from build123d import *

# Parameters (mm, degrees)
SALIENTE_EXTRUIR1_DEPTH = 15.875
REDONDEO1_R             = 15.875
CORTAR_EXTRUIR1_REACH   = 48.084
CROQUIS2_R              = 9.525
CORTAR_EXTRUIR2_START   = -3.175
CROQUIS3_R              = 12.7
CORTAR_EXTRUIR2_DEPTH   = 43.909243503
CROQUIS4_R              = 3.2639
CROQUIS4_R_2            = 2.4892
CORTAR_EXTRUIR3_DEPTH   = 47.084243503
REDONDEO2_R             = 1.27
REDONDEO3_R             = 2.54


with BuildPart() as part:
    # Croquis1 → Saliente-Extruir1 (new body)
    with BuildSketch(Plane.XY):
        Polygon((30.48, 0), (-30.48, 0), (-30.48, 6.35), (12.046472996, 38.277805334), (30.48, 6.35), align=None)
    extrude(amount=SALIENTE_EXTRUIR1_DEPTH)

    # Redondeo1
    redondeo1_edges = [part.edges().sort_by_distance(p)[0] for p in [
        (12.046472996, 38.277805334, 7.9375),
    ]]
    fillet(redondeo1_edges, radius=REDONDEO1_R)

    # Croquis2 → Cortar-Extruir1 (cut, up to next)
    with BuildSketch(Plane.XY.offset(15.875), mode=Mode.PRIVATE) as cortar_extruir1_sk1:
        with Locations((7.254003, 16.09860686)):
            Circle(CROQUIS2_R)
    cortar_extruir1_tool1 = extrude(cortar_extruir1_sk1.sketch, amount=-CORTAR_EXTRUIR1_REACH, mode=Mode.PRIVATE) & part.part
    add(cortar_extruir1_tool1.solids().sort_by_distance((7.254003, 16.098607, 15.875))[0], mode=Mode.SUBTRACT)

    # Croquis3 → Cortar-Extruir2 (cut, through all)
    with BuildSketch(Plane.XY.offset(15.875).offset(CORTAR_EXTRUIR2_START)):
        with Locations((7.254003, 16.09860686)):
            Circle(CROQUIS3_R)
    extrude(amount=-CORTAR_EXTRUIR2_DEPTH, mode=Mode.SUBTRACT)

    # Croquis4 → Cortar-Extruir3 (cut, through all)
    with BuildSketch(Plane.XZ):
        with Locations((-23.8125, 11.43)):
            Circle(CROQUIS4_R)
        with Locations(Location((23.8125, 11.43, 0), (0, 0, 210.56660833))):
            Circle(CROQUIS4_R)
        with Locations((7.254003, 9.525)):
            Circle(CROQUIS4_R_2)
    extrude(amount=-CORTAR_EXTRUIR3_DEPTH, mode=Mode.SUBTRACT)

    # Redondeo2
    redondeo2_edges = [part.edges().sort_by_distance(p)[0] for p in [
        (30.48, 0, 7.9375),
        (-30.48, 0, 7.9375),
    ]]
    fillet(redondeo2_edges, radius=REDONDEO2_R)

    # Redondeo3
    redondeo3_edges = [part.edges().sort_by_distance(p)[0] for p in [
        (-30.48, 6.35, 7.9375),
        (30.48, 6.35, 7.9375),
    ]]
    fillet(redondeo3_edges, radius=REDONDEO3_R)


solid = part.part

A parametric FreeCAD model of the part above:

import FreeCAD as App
import Part
import Sketcher

V = App.Vector
Q = App.Units.Quantity


def edges_at(feature, points):
    """Names of the edges that pass closest to the given points."""
    edges = feature.Shape.Edges
    near = lambda p: min(range(len(edges)), key=lambda i: edges[i].distToShape(Part.Vertex(*p))[0])
    return sorted({f"Edge{near(p) + 1}" for p in points})


def add_polygon(sketch, points):
    """Adds a closed chain of lines whose ends are joined by coincident constraints."""
    first, n = sketch.GeometryCount, len(points)
    for a, b in zip(points, points[1:] + points[:1]):
        sketch.addGeometry(Part.LineSegment(App.Vector(*a, 0), App.Vector(*b, 0)), False)
    for i in range(n):
        sketch.addConstraint(Sketcher.Constraint("Coincident", first + i, 2, first + (i + 1) % n, 1))

doc = App.newDocument("Part")
body = doc.addObject("PartDesign::Body", "Body")

# Sketch on XY plane
sketch1 = body.newObject("Sketcher::SketchObject", "Sketch")
sketch1.AttachmentSupport = (doc.getObject("XY_Plane"), [""])
sketch1.MapMode = "FlatFace"
add_polygon(sketch1, [(-30.48, 0), (30.48, 0), (30.48, 6.35), (12.046473, 38.277805), (-30.48, 6.35)])  # lines 0-4
sketch1.addConstraint([
    Sketcher.Constraint("Horizontal", 0),
    Sketcher.Constraint("Vertical", 1),
    Sketcher.Constraint("Vertical", 4),
    Sketcher.Constraint("Symmetric", 0, 2, 4, 2, -1, 1),
    Sketcher.Constraint("Horizontal", 1, 2, 3, 2),
    Sketcher.Constraint("DistanceX", 0, 1, 0, 2, Q("2.4 in")),
    Sketcher.Constraint("Angle", 2, Q("120 deg")),
    Sketcher.Constraint("DistanceY", 1, 1, 1, 2, Q("0.25 in")),
    Sketcher.Constraint("Distance", 3, 53.177868),
])
pad1 = body.newObject("PartDesign::Pad", "Pad")
pad1.Profile = sketch1
pad1.Length = Q("0.625 in")
doc.recompute()

fillet = body.newObject("PartDesign::Fillet", "Fillet")
fillet.Base = (pad1, edges_at(pad1, [(12.046, 38.278, 7.938)]))
fillet.Radius = Q("0.625 in")

# Sketch on XY plane
sketch2 = body.newObject("Sketcher::SketchObject", "Sketch001")
sketch2.AttachmentSupport = (doc.getObject("XY_Plane"), [""])
sketch2.MapMode = "FlatFace"
sketch2.AttachmentOffset = App.Placement(V(0, 0, 0.625 * 25.4), App.Rotation())
sketch2.addGeometry(Part.Circle(V(7.254003, 16.098607, 0), V(0, 0, 1), 9.525), False)
sketch2.addConstraint([
    Sketcher.Constraint("Diameter", 0, Q("0.75 in")),
    Sketcher.Constraint("DistanceX", -1, 1, 0, 3, 7.254003),
    Sketcher.Constraint("DistanceY", -1, 1, 0, 3, 16.098607),
])
pocket1 = body.newObject("PartDesign::Pocket", "Pocket")
pocket1.Profile = sketch2
pocket1.Type = "UpToFirst"

# Sketch on XY plane
sketch3 = body.newObject("Sketcher::SketchObject", "Sketch002")
sketch3.AttachmentSupport = (doc.getObject("XY_Plane"), [""])
sketch3.MapMode = "FlatFace"
sketch3.AttachmentOffset = App.Placement(V(0, 0, 0.5 * 25.4), App.Rotation())
sketch3.addGeometry(Part.Circle(V(7.254003, 16.098607, 0), V(0, 0, 1), 12.7), False)
sketch3.addConstraint([
    Sketcher.Constraint("Diameter", 0, Q("1 in")),
    Sketcher.Constraint("DistanceX", -1, 1, 0, 3, 7.254003),
    Sketcher.Constraint("DistanceY", -1, 1, 0, 3, 16.098607),
])
pocket2 = body.newObject("PartDesign::Pocket", "Pocket001")
pocket2.Profile = sketch3
pocket2.Type = "ThroughAll"

# Sketch on XZ plane
sketch4 = body.newObject("Sketcher::SketchObject", "Sketch003")
sketch4.AttachmentSupport = (doc.getObject("XZ_Plane"), [""])
sketch4.MapMode = "FlatFace"
sketch4.addGeometry([
    Part.Circle(V(-23.8125, 11.43, 0), V(0, 0, 1), 3.2639),
    Part.Circle(V(23.8125, 11.43, 0), V(0, 0, 1), 3.2639),
    Part.Circle(V(7.254003, 9.525, 0), V(0, 0, 1), 2.4892),
], False)
sketch4.addConstraint([
    Sketcher.Constraint("Equal", 0, 1),
    Sketcher.Constraint("Symmetric", 0, 3, 1, 3, -2),
    Sketcher.Constraint("Diameter", 0, Q("0.257 in")),
    Sketcher.Constraint("Diameter", 2, Q("0.196 in")),
    Sketcher.Constraint("DistanceY", -1, 1, 0, 3, Q("0.45 in")),
    Sketcher.Constraint("DistanceX", 0, 3, -1, 1, Q("0.9375 in")),
    Sketcher.Constraint("DistanceY", -1, 1, 2, 3, Q("0.375 in")),
    Sketcher.Constraint("DistanceX", -1, 1, 2, 3, 7.254003),
])
pocket3 = body.newObject("PartDesign::Pocket", "Pocket002")
pocket3.Profile = sketch4
pocket3.Type = "ThroughAll"
doc.recompute()

fillet2 = body.newObject("PartDesign::Fillet", "Fillet001")
fillet2.Base = (pocket3, edges_at(pocket3, [(30.48, 0, 7.938), (-30.48, 0, 7.938)]))
fillet2.Radius = Q("0.05 in")
doc.recompute()

fillet3 = body.newObject("PartDesign::Fillet", "Fillet002")
fillet3.Base = (fillet2, edges_at(fillet2, [(-30.48, 6.35, 7.938), (30.48, 6.35, 7.938)]))
fillet3.Radius = Q("0.1 in")

doc.recompute()
